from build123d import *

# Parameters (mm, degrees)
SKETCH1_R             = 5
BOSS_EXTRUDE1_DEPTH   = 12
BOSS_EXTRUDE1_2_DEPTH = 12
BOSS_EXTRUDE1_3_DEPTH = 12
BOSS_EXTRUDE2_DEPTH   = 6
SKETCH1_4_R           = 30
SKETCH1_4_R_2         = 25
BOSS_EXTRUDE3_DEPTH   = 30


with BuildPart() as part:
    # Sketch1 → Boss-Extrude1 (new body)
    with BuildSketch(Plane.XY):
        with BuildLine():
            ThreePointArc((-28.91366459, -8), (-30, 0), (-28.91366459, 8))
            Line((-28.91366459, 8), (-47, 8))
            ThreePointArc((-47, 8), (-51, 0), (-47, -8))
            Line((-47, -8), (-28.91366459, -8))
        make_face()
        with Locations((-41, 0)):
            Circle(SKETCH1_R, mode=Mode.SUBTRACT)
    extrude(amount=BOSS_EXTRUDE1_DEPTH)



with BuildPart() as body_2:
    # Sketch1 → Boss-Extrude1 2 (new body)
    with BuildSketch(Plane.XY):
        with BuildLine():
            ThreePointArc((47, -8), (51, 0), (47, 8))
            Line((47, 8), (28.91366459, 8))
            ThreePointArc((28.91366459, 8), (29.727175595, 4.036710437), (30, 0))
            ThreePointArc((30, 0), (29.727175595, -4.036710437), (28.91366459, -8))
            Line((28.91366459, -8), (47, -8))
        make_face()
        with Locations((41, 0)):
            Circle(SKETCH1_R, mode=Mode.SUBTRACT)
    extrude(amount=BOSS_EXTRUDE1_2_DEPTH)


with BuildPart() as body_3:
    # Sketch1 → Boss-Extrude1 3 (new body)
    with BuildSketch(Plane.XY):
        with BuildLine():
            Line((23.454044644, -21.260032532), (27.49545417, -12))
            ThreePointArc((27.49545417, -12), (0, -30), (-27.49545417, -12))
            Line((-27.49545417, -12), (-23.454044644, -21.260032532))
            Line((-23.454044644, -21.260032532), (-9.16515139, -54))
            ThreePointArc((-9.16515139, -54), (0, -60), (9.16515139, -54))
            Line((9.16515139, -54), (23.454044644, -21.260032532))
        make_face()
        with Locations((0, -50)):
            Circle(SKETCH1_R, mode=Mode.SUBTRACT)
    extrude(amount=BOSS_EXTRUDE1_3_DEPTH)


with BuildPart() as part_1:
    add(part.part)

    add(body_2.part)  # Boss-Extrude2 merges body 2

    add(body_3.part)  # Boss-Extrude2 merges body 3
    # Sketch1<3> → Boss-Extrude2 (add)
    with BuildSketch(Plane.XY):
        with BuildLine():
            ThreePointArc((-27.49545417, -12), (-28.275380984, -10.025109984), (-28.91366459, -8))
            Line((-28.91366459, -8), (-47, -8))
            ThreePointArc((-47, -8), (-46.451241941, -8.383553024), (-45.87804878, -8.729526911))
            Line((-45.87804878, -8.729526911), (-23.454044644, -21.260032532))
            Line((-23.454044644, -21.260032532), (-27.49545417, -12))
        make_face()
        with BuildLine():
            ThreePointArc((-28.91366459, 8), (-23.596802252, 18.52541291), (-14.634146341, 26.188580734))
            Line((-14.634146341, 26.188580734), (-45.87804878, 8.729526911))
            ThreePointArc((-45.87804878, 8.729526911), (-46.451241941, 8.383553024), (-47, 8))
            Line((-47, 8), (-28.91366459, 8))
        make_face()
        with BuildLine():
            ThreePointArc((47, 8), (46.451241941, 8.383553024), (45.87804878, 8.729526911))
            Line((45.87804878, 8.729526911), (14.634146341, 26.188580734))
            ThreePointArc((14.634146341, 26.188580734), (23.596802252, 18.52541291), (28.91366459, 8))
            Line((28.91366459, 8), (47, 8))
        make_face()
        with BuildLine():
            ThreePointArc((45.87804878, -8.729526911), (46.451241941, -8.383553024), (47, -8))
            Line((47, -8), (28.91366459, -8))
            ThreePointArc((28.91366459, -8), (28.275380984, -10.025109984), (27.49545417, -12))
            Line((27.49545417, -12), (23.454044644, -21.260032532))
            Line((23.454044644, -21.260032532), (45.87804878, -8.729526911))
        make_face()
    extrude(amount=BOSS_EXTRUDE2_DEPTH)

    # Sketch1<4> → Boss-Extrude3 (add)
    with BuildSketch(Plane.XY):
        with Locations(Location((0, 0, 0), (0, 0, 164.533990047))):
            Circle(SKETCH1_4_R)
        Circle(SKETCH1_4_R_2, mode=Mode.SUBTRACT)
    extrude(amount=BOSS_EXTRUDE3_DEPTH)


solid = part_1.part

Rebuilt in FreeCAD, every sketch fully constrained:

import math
import FreeCAD as App
import Part
import Sketcher
from FreeCAD import Vector

doc = App.newDocument("Part")
body = doc.addObject("PartDesign::Body", "Body")

# Sketch on XY plane
sketch1 = body.newObject("Sketcher::SketchObject", "Sketch")
sketch1.AttachmentSupport = (doc.getObject("XY_Plane"), [""])
sketch1.MapMode = "FlatFace"
sketch1.addGeometry([
    Part.ArcOfCircle(Part.Circle(Vector(0, 0, 0), Vector(0, 0, 1), 30), math.radians(165), math.radians(195)),  # 0
    Part.LineSegment(Vector(-29, 8, 0), Vector(-47, 8, 0)),  # 1
    Part.ArcOfCircle(Part.Circle(Vector(-41, 0, 0), Vector(0, 0, 1), 10), math.radians(127), math.radians(233)),  # 2
    Part.LineSegment(Vector(-47, -8, 0), Vector(-29, -8, 0)),  # 3
    Part.Circle(Vector(-41, 0, 0), Vector(0, 0, 1), 5),  # 4
], False)
sketch1.addConstraint([
    Sketcher.Constraint("Coincident", 0, 1, 1, 1),
    Sketcher.Constraint("Coincident", 1, 2, 2, 1),
    Sketcher.Constraint("Coincident", 2, 2, 3, 1),
    Sketcher.Constraint("Coincident", 3, 2, 0, 2),
    Sketcher.Constraint("Horizontal", 1),
    Sketcher.Constraint("Horizontal", 3),
    Sketcher.Constraint("Coincident", 0, 3, -1, 1),
    Sketcher.Constraint("Coincident", 4, 3, 2, 3),
    Sketcher.Constraint("Symmetric", 1, 2, 2, 2, -1),
    Sketcher.Constraint("Diameter", 4, 10.0),
    Sketcher.Constraint("Radius", 0, 30.0),
    Sketcher.Constraint("Radius", 2, 10.0),
    Sketcher.Constraint("DistanceX", 2, 3, -1, 1, 41.0),
    Sketcher.Constraint("DistanceY", -1, 1, 0, 1, 8.0),
])
pad1 = body.newObject("PartDesign::Pad", "Pad")
pad1.Profile = sketch1
pad1.Length = 12
body2 = doc.addObject("PartDesign::Body", "Body001")

# Sketch on XY plane
sketch2 = body2.newObject("Sketcher::SketchObject", "Sketch001")
sketch2.AttachmentSupport = (doc.getObject("XY_Plane001"), [""])
sketch2.MapMode = "FlatFace"
sketch2.addGeometry([
    Part.ArcOfCircle(Part.Circle(Vector(41, 0, 0), Vector(0, 0, 1), 10), math.radians(-53), math.radians(53)),  # 0
    Part.LineSegment(Vector(47, 8, 0), Vector(29, 8, 0)),  # 1
    Part.ArcOfCircle(Part.Circle(Vector(0, 0, 0), Vector(0, 0, 1), 30), math.radians(0), math.radians(15.47)),  # 2
    Part.ArcOfCircle(Part.Circle(Vector(0, 0, 0), Vector(0, 0, 1), 30), math.radians(-15.47), math.radians(0)),  # 3
    Part.LineSegment(Vector(29, -8, 0), Vector(47, -8, 0)),  # 4
    Part.Circle(Vector(41, 0, 0), Vector(0, 0, 1), 5),  # 5
], False)
sketch2.addConstraint([
    Sketcher.Constraint("Coincident", 0, 2, 1, 1),
    Sketcher.Constraint("Coincident", 1, 2, 2, 2),
    Sketcher.Constraint("Tangent", 2, 1, 3, 2),
    Sketcher.Constraint("Coincident", 3, 1, 4, 1),
    Sketcher.Constraint("Coincident", 4, 2, 0, 1),
    Sketcher.Constraint("Horizontal", 1),
    Sketcher.Constraint("Horizontal", 4),
    Sketcher.Constraint("Coincident", 2, 3, -1, 1),
    Sketcher.Constraint("Coincident", 5, 3, 0, 3),
    Sketcher.Constraint("Equal", 2, 3),
    Sketcher.Constraint("Symmetric", 0, 2, 4, 2, -1),
    Sketcher.Constraint("PointOnObject", 2, 1, -1),
    Sketcher.Constraint("Diameter", 5, 10.0),
    Sketcher.Constraint("Radius", 0, 10.0),
    Sketcher.Constraint("Radius", 2, 30.0),
    Sketcher.Constraint("DistanceX", -1, 1, 0, 3, 41.0),
    Sketcher.Constraint("DistanceX", -1, 1, 0, 2, 47.0),
])
pad2 = body2.newObject("PartDesign::Pad", "Pad001")
pad2.Profile = sketch2
pad2.Length = 12
body3 = doc.addObject("PartDesign::Body", "Body002")

# Sketch on XY plane
sketch3 = body3.newObject("Sketcher::SketchObject", "Sketch002")
sketch3.AttachmentSupport = (doc.getObject("XY_Plane002"), [""])
sketch3.MapMode = "FlatFace"
sketch3.addGeometry([
    Part.LineSegment(Vector(23, -21, 0), Vector(27, -12, 0)),  # 0
    Part.ArcOfCircle(Part.Circle(Vector(0, 0, 0), Vector(0, 0, 1), 30), math.radians(-156), math.radians(-24)),  # 1
    Part.LineSegment(Vector(-27, -12, 0), Vector(-23, -21, 0)),  # 2
    Part.LineSegment(Vector(-23, -21, 0), Vector(-9, -54, 0)),  # 3
    Part.ArcOfCircle(Part.Circle(Vector(0, -50, 0), Vector(0, 0, 1), 10), math.radians(-156), math.radians(-24)),  # 4
    Part.LineSegment(Vector(9, -54, 0), Vector(23, -21, 0)),  # 5
    Part.Circle(Vector(0, -50, 0), Vector(0, 0, 1), 5),  # 6
], False)
sketch3.addConstraint([
    Sketcher.Constraint("Tangent", 0, 2, 1, 2),
    Sketcher.Constraint("Tangent", 1, 1, 2, 1),
    Sketcher.Constraint("Coincident", 2, 2, 3, 1),
    Sketcher.Constraint("Tangent", 3, 2, 4, 1),
    Sketcher.Constraint("Tangent", 4, 2, 5, 1),
    Sketcher.Constraint("Coincident", 5, 2, 0, 1),
    Sketcher.Constraint("Coincident", 1, 3, -1, 1),
    Sketcher.Constraint("Coincident", 6, 3, 4, 3),
    Sketcher.Constraint("Symmetric", 3, 2, 4, 2, -2),
    Sketcher.Constraint("Parallel", 2, 3),
    Sketcher.Constraint("Horizontal", 2, 2, 5, 2),
    Sketcher.Constraint("Diameter", 6, 10.0),
    Sketcher.Constraint("Radius", 1, 30.0),
    Sketcher.Constraint("Radius", 4, 10.0),
    Sketcher.Constraint("DistanceY", 4, 3, -1, 1, 50.0),
    Sketcher.Constraint("DistanceX", 2, 2, 0, 2, 50.949499),
])
pad3 = body3.newObject("PartDesign::Pad", "Pad002")
pad3.Profile = sketch3
pad3.Length = 12
body.AllowCompound = True
doc.recompute()

boolean = body.newObject("PartDesign::Boolean", "Boolean")
boolean.Type = "Fuse"
boolean.addObjects([body2])
doc.recompute()

boolean2 = body.newObject("PartDesign::Boolean", "Boolean001")
boolean2.Type = "Fuse"
boolean2.addObjects([body3])

# Sketch on XY plane
sketch4 = body.newObject("Sketcher::SketchObject", "Sketch003")
sketch4.AttachmentSupport = (doc.getObject("XY_Plane"), [""])
sketch4.MapMode = "FlatFace"
sketch4.addGeometry([
    Part.ArcOfCircle(Part.Circle(Vector(0, 0, 0), Vector(0, 0, 1), 30), math.radians(-164.53), math.radians(-156.42)),  # 0
    Part.LineSegment(Vector(-28.9, -8, 0), Vector(-47, -8, 0)),  # 1
    Part.ArcOfCircle(Part.Circle(Vector(-41, 0, 0), Vector(0, 0, 1), 10), math.radians(-126.87), math.radians(-119.2)),  # 2
    Part.LineSegment(Vector(-45.9, -8.7, 0), Vector(-23.5, -21.3, 0)),  # 3
    Part.LineSegment(Vector(-23.5, -21.3, 0), Vector(-27.5, -12, 0)),  # 4
    Part.ArcOfCircle(Part.Circle(Vector(0, 0, 0), Vector(0, 0, 1), 30), math.radians(119), math.radians(165)),  # 5
    Part.LineSegment(Vector(-14.6, 26.2, 0), Vector(-45.9, 8.7, 0)),  # 6
    Part.ArcOfCircle(Part.Circle(Vector(-41, 0, 0), Vector(0, 0, 1), 10), math.radians(119.2), math.radians(126.87)),  # 7
    Part.LineSegment(Vector(-47, 8, 0), Vector(-28.9, 8, 0)),  # 8
    Part.ArcOfCircle(Part.Circle(Vector(41, 0, 0), Vector(0, 0, 1), 10), math.radians(53.13), math.radians(60.8)),  # 9
    Part.LineSegment(Vector(45.9, 8.7, 0), Vector(14.6, 26.2, 0)),  # 10
    Part.ArcOfCircle(Part.Circle(Vector(0, 0, 0), Vector(0, 0, 1), 30), math.radians(15), math.radians(61)),  # 11
    Part.LineSegment(Vector(28.9, 8, 0), Vector(47, 8, 0)),  # 12
    Part.ArcOfCircle(Part.Circle(Vector(41, 0, 0), Vector(0, 0, 1), 10), math.radians(-60.8), math.radians(-53.13)),  # 13
    Part.LineSegment(Vector(47, -8, 0), Vector(28.9, -8, 0)),  # 14
    Part.ArcOfCircle(Part.Circle(Vector(0, 0, 0), Vector(0, 0, 1), 30), math.radians(-23.58), math.radians(-15.47)),  # 15
    Part.LineSegment(Vector(27.5, -12, 0), Vector(23.5, -21.3, 0)),  # 16
    Part.LineSegment(Vector(23.5, -21.3, 0), Vector(45.9, -8.7, 0)),  # 17
], False)
sketch4.addConstraint([
    Sketcher.Constraint("Coincident", 0, 1, 1, 1),
    Sketcher.Constraint("Coincident", 1, 2, 2, 1),
    Sketcher.Constraint("Tangent", 2, 2, 3, 1),
    Sketcher.Constraint("Coincident", 3, 2, 4, 1),
    Sketcher.Constraint("Tangent", 4, 2, 0, 2),
    Sketcher.Constraint("Tangent", 5, 1, 6, 1),
    Sketcher.Constraint("Tangent", 6, 2, 7, 1),
    Sketcher.Constraint("Coincident", 7, 2, 8, 1),
    Sketcher.Constraint("Coincident", 8, 2, 5, 2),
    Sketcher.Constraint("Tangent", 9, 2, 10, 1),
    Sketcher.Constraint("Tangent", 10, 2, 11, 2),
    Sketcher.Constraint("Coincident", 11, 1, 12, 1),
    Sketcher.Constraint("Coincident", 12, 2, 9, 1),
    Sketcher.Constraint("Coincident", 13, 2, 14, 1),
    Sketcher.Constraint("Coincident", 14, 2, 15, 2),
    Sketcher.Constraint("Tangent", 15, 1, 16, 1),
    Sketcher.Constraint("Coincident", 16, 2, 17, 1),
    Sketcher.Constraint("Tangent", 17, 2, 13, 1),
    Sketcher.Constraint("Horizontal", 1),
    Sketcher.Constraint("Horizontal", 8),
    Sketcher.Constraint("Horizontal", 12),
    Sketcher.Constraint("Horizontal", 14),
    Sketcher.Constraint("Coincident", 0, 3, -1, 1),
    Sketcher.Constraint("Coincident", 5, 3, -1, 1),
    Sketcher.Constraint("Coincident", 11, 3, -1, 1),
    Sketcher.Constraint("Coincident", 15, 3, -1, 1),
    Sketcher.Constraint("Coincident", 7, 3, 2, 3),
    Sketcher.Constraint("Coincident", 13, 3, 9, 3),
    Sketcher.Constraint("Equal", 0, 5),
    Sketcher.Constraint("Equal", 2, 7),
    Sketcher.Constraint("Equal", 7, 9),
    Sketcher.Constraint("Equal", 5, 11),
    Sketcher.Constraint("Equal", 9, 13),
    Sketcher.Constraint("Equal", 11, 15),
    Sketcher.Constraint("Symmetric", 2, 3, 9, 3, -1, 1),
    Sketcher.Constraint("Symmetric", 7, 2, 12, 2, -2),
    Sketcher.Constraint("Symmetric", 3, 2, 16, 2, -2),
    Sketcher.Constraint("Parallel", 3, 10),
    Sketcher.Constraint("Horizontal", 1, 2, 13, 2),
    Sketcher.Constraint("Vertical", 1, 2, 7, 2),
    Sketcher.Constraint("Radius", 0, 30.0),
    Sketcher.Constraint("Radius", 2, 10.0),
    Sketcher.Constraint("DistanceX", 2, 3, -1, 1, 41.0),
    Sketcher.Constraint("DistanceY", 0, 1, -1, 1, 8.0),
    Sketcher.Constraint("DistanceY", 4, 2, -1, 1, 12.0),
])
pad4 = body.newObject("PartDesign::Pad", "Pad003")
pad4.Profile = sketch4
pad4.Length = 6

# Sketch on XY plane
sketch5 = body.newObject("Sketcher::SketchObject", "Sketch004")
sketch5.AttachmentSupport = (doc.getObject("XY_Plane"), [""])
sketch5.MapMode = "FlatFace"
sketch5.addGeometry([
    Part.Circle(Vector(0, 0, 0), Vector(0, 0, 1), 30),
    Part.Circle(Vector(0, 0, 0), Vector(0, 0, 1), 25),
], False)
sketch5.addConstraint([
    Sketcher.Constraint("Coincident", 0, 3, -1, 1),
    Sketcher.Constraint("Coincident", 1, 3, -1, 1),
    Sketcher.Constraint("Diameter", 0, 60.0),
    Sketcher.Constraint("Diameter", 1, 50.0),
])
pad5 = body.newObject("PartDesign::Pad", "Pad004")
pad5.Profile = sketch5
pad5.Length = 30

doc.recompute()
